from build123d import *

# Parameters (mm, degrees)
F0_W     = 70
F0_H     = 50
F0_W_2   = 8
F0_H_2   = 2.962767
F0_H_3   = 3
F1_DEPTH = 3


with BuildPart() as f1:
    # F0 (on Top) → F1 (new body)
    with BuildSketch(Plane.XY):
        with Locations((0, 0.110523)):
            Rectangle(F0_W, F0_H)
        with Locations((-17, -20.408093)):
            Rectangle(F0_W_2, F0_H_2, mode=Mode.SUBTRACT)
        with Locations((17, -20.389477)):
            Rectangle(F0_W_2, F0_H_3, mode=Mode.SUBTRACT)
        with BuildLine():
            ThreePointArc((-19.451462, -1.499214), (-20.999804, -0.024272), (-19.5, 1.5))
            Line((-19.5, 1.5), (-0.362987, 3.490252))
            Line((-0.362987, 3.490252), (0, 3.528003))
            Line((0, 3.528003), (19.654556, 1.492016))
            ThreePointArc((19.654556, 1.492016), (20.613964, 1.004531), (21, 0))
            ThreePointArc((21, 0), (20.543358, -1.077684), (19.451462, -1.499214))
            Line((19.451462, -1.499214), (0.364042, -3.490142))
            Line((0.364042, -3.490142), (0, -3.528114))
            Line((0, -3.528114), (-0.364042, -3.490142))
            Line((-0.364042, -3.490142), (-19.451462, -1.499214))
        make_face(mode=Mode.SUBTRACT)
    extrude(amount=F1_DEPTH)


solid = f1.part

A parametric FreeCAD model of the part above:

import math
import FreeCAD as App
import Part
import Sketcher

doc = App.newDocument("Part")
body = doc.addObject("PartDesign::Body", "Body")

# Sketch on XY plane
sketch1 = body.newObject("Sketcher::SketchObject", "Sketch")
sketch1.AttachmentSupport = (doc.getObject("XY_Plane"), [""])
sketch1.MapMode = "FlatFace"
sketch1.addGeometry([
    Part.LineSegment(App.Vector(-35, 25.11, 0), App.Vector(-35, -24.89, 0)),  # 0
    Part.LineSegment(App.Vector(-35, -24.89, 0), App.Vector(35, -24.89, 0)),  # 1
    Part.LineSegment(App.Vector(35, -24.89, 0), App.Vector(35, 25.11, 0)),  # 2
    Part.LineSegment(App.Vector(35, 25.11, 0), App.Vector(-35, 25.11, 0)),  # 3
    Part.LineSegment(App.Vector(-13, -21.89, 0), App.Vector(-21, -21.89, 0)),  # 4
    Part.LineSegment(App.Vector(-21, -21.89, 0), App.Vector(-21, -18.93, 0)),  # 5
    Part.LineSegment(App.Vector(-21, -18.93, 0), App.Vector(-13, -18.93, 0)),  # 6
    Part.LineSegment(App.Vector(-13, -18.93, 0), App.Vector(-13, -21.89, 0)),  # 7
    Part.LineSegment(App.Vector(21, -21.89, 0), App.Vector(13, -21.89, 0)),  # 8
    Part.LineSegment(App.Vector(13, -21.89, 0), App.Vector(13, -18.89, 0)),  # 9
    Part.LineSegment(App.Vector(13, -18.89, 0), App.Vector(21, -18.89, 0)),  # 10
    Part.LineSegment(App.Vector(21, -18.89, 0), App.Vector(21, -21.89, 0)),  # 11
    Part.LineSegment(App.Vector(-0.36, -3.49, 0), App.Vector(-19.45, -1.5, 0)),  # 12
    Part.ArcOfCircle(Part.Circle(App.Vector(-19.5, 0, 0), App.Vector(0, 0, 1), 1.5), math.radians(90), math.radians(272)),  # 13
    Part.LineSegment(App.Vector(-19.5, 1.5, 0), App.Vector(-0.36, 3.49, 0)),  # 14
    Part.LineSegment(App.Vector(-0.36, 3.49, 0), App.Vector(0, 3.53, 0)),  # 15
    Part.LineSegment(App.Vector(0, 3.53, 0), App.Vector(19.65, 1.49, 0)),  # 16
    Part.ArcOfCircle(Part.Circle(App.Vector(19.5, 0, 0), App.Vector(0, 0, 1), 1.5), math.radians(0), math.radians(84)),  # 17
    Part.ArcOfCircle(Part.Circle(App.Vector(19.5, 0, 0), App.Vector(0, 0, 1), 1.5), math.radians(-92), math.radians(0)),  # 18
    Part.LineSegment(App.Vector(19.45, -1.5, 0), App.Vector(0.36, -3.49, 0)),  # 19
    Part.LineSegment(App.Vector(0.36, -3.49, 0), App.Vector(0, -3.53, 0)),  # 20
    Part.LineSegment(App.Vector(0, -3.53, 0), App.Vector(-0.36, -3.49, 0)),  # 21
], False)
sketch1.addConstraint([
    Sketcher.Constraint("Coincident", 0, 2, 1, 1),
    Sketcher.Constraint("Coincident", 1, 2, 2, 1),
    Sketcher.Constraint("Coincident", 2, 2, 3, 1),
    Sketcher.Constraint("Coincident", 3, 2, 0, 1),
    Sketcher.Constraint("Coincident", 4, 2, 5, 1),
    Sketcher.Constraint("Coincident", 5, 2, 6, 1),
    Sketcher.Constraint("Coincident", 6, 2, 7, 1),
    Sketcher.Constraint("Coincident", 7, 2, 4, 1),
    Sketcher.Constraint("Coincident", 8, 2, 9, 1),
    Sketcher.Constraint("Coincident", 9, 2, 10, 1),
    Sketcher.Constraint("Coincident", 10, 2, 11, 1),
    Sketcher.Constraint("Coincident", 11, 2, 8, 1),
    Sketcher.Constraint("Coincident", 12, 2, 13, 2),
    Sketcher.Constraint("Coincident", 13, 1, 14, 1),
    Sketcher.Constraint("Coincident", 14, 2, 15, 1),
    Sketcher.Constraint("Coincident", 15, 2, 16, 1),
    Sketcher.Constraint("Tangent", 16, 2, 17, 2),
    Sketcher.Constraint("Tangent", 17, 1, 18, 2),
    Sketcher.Constraint("Coincident", 18, 1, 19, 1),
    Sketcher.Constraint("Coincident", 19, 2, 20, 1),
    Sketcher.Constraint("Coincident", 20, 2, 21, 1),
    Sketcher.Constraint("Coincident", 21, 2, 12, 1),
    Sketcher.Constraint("Vertical", 0),
    Sketcher.Constraint("Horizontal", 1),
    Sketcher.Constraint("Vertical", 2),
    Sketcher.Constraint("Horizontal", 3),
    Sketcher.Constraint("Horizontal", 4),
    Sketcher.Constraint("Vertical", 5),
    Sketcher.Constraint("Horizontal", 6),
    Sketcher.Constraint("Vertical", 7),
    Sketcher.Constraint("Horizontal", 8),
    Sketcher.Constraint("Vertical", 9),
    Sketcher.Constraint("Horizontal", 10),
    Sketcher.Constraint("Vertical", 11),
    Sketcher.Constraint("Equal", 13, 17),
    Sketcher.Constraint("Equal", 17, 18),
    Sketcher.Constraint("Symmetric", 13, 3, 17, 3, -1, 1),
    Sketcher.Constraint("Symmetric", 7, 2, 8, 2, -2),
    Sketcher.Constraint("Symmetric", 12, 2, 18, 1, -2),
    Sketcher.Constraint("Symmetric", 19, 2, 21, 2, -2),
    Sketcher.Constraint("PointOnObject", 15, 2, -2),
    Sketcher.Constraint("PointOnObject", 17, 1, -1),
    Sketcher.Constraint("PointOnObject", 20, 2, -2),
    Sketcher.Constraint("Parallel", 14, 15),
    Sketcher.Constraint("Parallel", 19, 20),
    Sketcher.Constraint("Vertical", 11, 2, 17, 1),
    Sketcher.Constraint("Equal", 6, 8),
    Sketcher.Constraint("Radius", 13, 1.5),
    Sketcher.Constraint("DistanceX", 1, 1, 1, 2, 70.0),
    Sketcher.Constraint("DistanceX", 4, 2, 4, 1, 8.0),
    Sketcher.Constraint("DistanceY", 0, 2, 0, 1, 50.0),
    Sketcher.Constraint("DistanceY", 9, 1, 9, 2, 3.0),
    Sketcher.Constraint("DistanceX", 0, 2, -1, 1, 35.0),
    Sketcher.Constraint("DistanceX", 4, 2, -1, 1, 21.0),
    Sketcher.Constraint("DistanceY", 0, 2, 4, 2, 3.0),
    Sketcher.Constraint("DistanceX", 13, 1, -1, 1, 19.5),
    Sketcher.Constraint("DistanceY", 20, 2, 12, 2, 2.0289),
    Sketcher.Constraint("Distance", 12, 19.190972),
    Sketcher.Constraint("DistanceY", 5, 1, 5, 2, 2.962767),
    Sketcher.Constraint("DistanceY", 5, 2, -1, 1, 18.92671),
    Sketcher.Constraint("DistanceX", 12, 2, -1, 1, 19.451462),
    Sketcher.Constraint("DistanceY", -1, 1, 14, 2, 3.490252),
    Sketcher.Constraint("DistanceY", 14, 2, 15, 2, 0.037751),
])
pad1 = body.newObject("PartDesign::Pad", "Pad")
pad1.Profile = sketch1
pad1.Length = 3

doc.recompute()
